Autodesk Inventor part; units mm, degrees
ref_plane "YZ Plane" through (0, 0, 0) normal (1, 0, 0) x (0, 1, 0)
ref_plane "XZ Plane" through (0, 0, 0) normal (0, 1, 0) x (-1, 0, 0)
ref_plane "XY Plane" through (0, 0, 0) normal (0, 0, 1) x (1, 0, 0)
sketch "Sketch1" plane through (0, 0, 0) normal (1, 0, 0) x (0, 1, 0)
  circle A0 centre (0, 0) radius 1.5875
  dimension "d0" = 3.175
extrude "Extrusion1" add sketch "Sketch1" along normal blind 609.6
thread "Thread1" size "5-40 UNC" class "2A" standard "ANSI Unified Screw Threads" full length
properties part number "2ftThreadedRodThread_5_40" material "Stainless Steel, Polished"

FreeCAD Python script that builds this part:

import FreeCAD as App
import Part
import Sketcher
Q = App.Units.Quantity

doc = App.newDocument("Part")
body = doc.addObject("PartDesign::Body", "Body")

sketch1 = body.newObject("Sketcher::SketchObject", "Sketch")
sketch1.AttachmentSupport = (doc.getObject("YZ_Plane"), [""])
sketch1.MapMode = "FlatFace"
sketch1.addGeometry(Part.Circle(App.Vector(0, 0, 0), App.Vector(0, 0, 1), 1.6), False)
sketch1.addConstraint([
    Sketcher.Constraint("Coincident", 0, 3, -1, 1),
    Sketcher.Constraint("Diameter", 0, Q("0.125 in")),
])
pad1 = body.newObject("PartDesign::Pad", "Pad")
pad1.Profile = sketch1
pad1.Length = Q("24 in")

doc.recompute()
